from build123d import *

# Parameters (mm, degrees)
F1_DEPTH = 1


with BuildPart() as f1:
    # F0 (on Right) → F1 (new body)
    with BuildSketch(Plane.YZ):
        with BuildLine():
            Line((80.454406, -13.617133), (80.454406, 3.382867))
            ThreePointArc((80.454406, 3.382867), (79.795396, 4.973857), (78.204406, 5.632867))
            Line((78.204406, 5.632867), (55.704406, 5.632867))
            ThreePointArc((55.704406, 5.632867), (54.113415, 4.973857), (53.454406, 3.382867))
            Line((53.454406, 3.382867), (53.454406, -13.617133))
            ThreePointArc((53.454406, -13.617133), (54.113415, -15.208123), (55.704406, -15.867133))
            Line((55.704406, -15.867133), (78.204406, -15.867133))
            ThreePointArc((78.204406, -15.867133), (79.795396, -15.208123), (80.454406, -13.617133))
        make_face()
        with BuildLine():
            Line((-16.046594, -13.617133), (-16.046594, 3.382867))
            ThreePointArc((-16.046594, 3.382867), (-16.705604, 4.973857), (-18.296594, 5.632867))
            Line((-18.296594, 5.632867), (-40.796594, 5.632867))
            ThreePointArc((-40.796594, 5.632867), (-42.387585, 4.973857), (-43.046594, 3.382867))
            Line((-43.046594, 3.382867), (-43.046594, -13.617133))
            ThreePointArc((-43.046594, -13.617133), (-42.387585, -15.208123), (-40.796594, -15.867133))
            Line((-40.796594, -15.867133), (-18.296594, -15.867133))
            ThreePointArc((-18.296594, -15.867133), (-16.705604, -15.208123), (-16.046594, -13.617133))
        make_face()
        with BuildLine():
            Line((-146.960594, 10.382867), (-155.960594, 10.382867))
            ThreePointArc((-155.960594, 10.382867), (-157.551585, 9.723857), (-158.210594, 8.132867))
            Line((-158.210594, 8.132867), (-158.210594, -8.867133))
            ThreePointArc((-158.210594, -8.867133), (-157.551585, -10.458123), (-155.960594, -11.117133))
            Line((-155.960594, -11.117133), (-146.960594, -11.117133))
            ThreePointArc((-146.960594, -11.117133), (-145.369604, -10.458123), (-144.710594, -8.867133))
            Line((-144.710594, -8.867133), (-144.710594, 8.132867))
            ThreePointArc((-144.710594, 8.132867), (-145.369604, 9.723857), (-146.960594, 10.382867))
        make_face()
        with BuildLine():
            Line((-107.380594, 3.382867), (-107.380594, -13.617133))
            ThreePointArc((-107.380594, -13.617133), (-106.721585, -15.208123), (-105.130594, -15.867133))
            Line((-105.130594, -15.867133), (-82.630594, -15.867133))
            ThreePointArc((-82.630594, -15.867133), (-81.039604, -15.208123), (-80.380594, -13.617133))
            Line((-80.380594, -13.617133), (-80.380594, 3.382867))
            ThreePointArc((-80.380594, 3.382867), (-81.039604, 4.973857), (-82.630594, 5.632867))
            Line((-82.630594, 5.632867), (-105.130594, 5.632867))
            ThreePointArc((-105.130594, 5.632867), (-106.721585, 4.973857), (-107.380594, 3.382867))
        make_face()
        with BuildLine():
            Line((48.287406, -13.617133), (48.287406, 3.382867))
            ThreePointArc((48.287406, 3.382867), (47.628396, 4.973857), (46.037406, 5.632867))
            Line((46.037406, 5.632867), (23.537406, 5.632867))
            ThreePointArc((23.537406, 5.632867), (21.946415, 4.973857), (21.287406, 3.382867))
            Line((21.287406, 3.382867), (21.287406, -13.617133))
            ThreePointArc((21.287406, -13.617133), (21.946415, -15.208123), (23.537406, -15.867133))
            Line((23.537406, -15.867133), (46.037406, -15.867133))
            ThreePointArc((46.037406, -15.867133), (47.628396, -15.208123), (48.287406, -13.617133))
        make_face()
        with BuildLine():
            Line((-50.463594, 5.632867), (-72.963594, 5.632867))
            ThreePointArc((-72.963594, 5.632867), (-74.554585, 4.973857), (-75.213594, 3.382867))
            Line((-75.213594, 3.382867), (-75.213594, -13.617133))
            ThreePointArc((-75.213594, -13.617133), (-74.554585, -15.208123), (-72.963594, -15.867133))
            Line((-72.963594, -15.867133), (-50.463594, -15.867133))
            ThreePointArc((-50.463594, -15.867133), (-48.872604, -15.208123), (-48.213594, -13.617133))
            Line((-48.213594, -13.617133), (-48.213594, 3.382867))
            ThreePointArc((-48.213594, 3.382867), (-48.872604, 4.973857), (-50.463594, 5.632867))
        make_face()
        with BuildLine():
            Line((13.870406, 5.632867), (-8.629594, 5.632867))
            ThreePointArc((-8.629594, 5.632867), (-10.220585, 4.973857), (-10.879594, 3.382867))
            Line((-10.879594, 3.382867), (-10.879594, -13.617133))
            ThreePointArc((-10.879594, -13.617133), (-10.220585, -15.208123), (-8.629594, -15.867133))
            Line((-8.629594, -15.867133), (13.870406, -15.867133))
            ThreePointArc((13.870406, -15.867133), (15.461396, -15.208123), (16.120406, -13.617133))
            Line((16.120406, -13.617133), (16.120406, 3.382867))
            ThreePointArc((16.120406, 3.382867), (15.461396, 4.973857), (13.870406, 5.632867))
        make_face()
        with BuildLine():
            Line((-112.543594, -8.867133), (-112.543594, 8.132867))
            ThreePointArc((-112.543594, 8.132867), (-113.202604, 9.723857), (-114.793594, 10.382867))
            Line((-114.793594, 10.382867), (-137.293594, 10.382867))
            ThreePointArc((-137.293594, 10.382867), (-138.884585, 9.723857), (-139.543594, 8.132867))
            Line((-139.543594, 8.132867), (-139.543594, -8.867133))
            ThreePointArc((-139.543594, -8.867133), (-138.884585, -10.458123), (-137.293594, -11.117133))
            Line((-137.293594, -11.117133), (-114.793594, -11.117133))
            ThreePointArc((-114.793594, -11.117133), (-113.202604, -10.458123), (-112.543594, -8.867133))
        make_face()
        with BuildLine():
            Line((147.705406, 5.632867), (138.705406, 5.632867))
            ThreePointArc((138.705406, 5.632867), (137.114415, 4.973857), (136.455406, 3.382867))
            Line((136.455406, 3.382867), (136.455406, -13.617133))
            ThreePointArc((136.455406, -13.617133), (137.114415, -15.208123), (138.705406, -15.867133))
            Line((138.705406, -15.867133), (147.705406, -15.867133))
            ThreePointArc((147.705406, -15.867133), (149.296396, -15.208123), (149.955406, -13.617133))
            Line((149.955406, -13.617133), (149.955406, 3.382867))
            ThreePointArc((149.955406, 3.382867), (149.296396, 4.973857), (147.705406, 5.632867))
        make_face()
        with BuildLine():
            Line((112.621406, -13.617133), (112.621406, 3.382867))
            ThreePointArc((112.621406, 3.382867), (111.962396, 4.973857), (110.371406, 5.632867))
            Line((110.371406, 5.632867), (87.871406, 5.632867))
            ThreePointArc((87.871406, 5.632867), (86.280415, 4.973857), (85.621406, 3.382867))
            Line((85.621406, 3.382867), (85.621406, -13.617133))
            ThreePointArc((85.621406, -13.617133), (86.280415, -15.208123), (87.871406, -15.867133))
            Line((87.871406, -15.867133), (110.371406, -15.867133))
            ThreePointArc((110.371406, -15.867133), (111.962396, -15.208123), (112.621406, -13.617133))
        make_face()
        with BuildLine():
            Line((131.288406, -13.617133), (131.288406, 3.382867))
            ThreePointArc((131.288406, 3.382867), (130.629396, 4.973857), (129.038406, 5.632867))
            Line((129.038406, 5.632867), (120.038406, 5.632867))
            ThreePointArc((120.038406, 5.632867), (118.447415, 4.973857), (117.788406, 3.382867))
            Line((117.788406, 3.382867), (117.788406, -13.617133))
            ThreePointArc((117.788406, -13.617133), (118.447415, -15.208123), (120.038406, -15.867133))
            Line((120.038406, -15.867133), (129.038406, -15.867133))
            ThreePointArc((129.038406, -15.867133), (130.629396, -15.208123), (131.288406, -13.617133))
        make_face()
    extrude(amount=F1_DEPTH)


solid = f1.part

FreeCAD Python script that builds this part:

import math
import FreeCAD as App
import Part
import Sketcher

V = App.Vector
Q = App.Units.Quantity

doc = App.newDocument("Part")
body = doc.addObject("PartDesign::Body", "Body")
body.AllowCompound = True

sketch1 = doc.addObject("Sketcher::SketchObject", "Sketch")
body.addObject(sketch1)
sketch1.AttachmentSupport = (doc.YZ_Plane, [""])
sketch1.MapMode = "FlatFace"
sketch1.addGeometry([
    Part.LineSegment(V(80.5, -13.6, 0), V(80.5, 3.4, 0)),
    Part.ArcOfCircle(Part.Circle(V(78.2, 3.4, 0), V(0, 0, 1), 2.3), math.radians(0), math.radians(90)),
    Part.LineSegment(V(78.2, 5.6, 0), V(55.7, 5.6, 0)),
    Part.ArcOfCircle(Part.Circle(V(55.7, 3.4, 0), V(0, 0, 1), 2.2), math.radians(90), math.radians(180)),
    Part.LineSegment(V(53.5, 3.4, 0), V(53.5, -13.6, 0)),
    Part.ArcOfCircle(Part.Circle(V(55.7, -13.6, 0), V(0, 0, 1), 2.2), math.radians(180), math.radians(270)),
    Part.LineSegment(V(55.7, -15.9, 0), V(78.2, -15.9, 0)),
    Part.ArcOfCircle(Part.Circle(V(78.2, -13.6, 0), V(0, 0, 1), 2.3), math.radians(-90), math.radians(0)),
    Part.LineSegment(V(-16, -13.6, 0), V(-16, 3.4, 0)),
    Part.ArcOfCircle(Part.Circle(V(-18.3, 3.4, 0), V(0, 0, 1), 2.3), math.radians(0), math.radians(90)),
    Part.LineSegment(V(-18.3, 5.6, 0), V(-40.8, 5.6, 0)),
    Part.ArcOfCircle(Part.Circle(V(-40.8, 3.4, 0), V(0, 0, 1), 2.2), math.radians(90), math.radians(180)),
    Part.LineSegment(V(-43, 3.4, 0), V(-43, -13.6, 0)),
    Part.ArcOfCircle(Part.Circle(V(-40.8, -13.6, 0), V(0, 0, 1), 2.2), math.radians(180), math.radians(270)),
    Part.LineSegment(V(-40.8, -15.9, 0), V(-18.3, -15.9, 0)),
    Part.ArcOfCircle(Part.Circle(V(-18.3, -13.6, 0), V(0, 0, 1), 2.3), math.radians(-90), math.radians(0)),
    Part.LineSegment(V(-147, 10.4, 0), V(-156, 10.4, 0)),
    Part.ArcOfCircle(Part.Circle(V(-156, 8.1, 0), V(0, 0, 1), 2.2), math.radians(90), math.radians(180)),
    Part.LineSegment(V(-158.2, 8.1, 0), V(-158.2, -8.9, 0)),
    Part.ArcOfCircle(Part.Circle(V(-156, -8.9, 0), V(0, 0, 1), 2.2), math.radians(180), math.radians(270)),
    Part.LineSegment(V(-156, -11.1, 0), V(-147, -11.1, 0)),
    Part.ArcOfCircle(Part.Circle(V(-147, -8.9, 0), V(0, 0, 1), 2.3), math.radians(-90), math.radians(0)),
    Part.LineSegment(V(-144.7, -8.9, 0), V(-144.7, 8.1, 0)),
    Part.ArcOfCircle(Part.Circle(V(-147, 8.1, 0), V(0, 0, 1), 2.3), math.radians(0), math.radians(90)),
    Part.LineSegment(V(-107.4, 3.4, 0), V(-107.4, -13.6, 0)),
    Part.ArcOfCircle(Part.Circle(V(-105.1, -13.6, 0), V(0, 0, 1), 2.2), math.radians(180), math.radians(270)),
    Part.LineSegment(V(-105.1, -15.9, 0), V(-82.6, -15.9, 0)),
    Part.ArcOfCircle(Part.Circle(V(-82.6, -13.6, 0), V(0, 0, 1), 2.3), math.radians(-90), math.radians(0)),
    Part.LineSegment(V(-80.4, -13.6, 0), V(-80.4, 3.4, 0)),
    Part.ArcOfCircle(Part.Circle(V(-82.6, 3.4, 0), V(0, 0, 1), 2.3), math.radians(0), math.radians(90)),
    Part.LineSegment(V(-82.6, 5.6, 0), V(-105.1, 5.6, 0)),
    Part.ArcOfCircle(Part.Circle(V(-105.1, 3.4, 0), V(0, 0, 1), 2.2), math.radians(90), math.radians(180)),
    Part.LineSegment(V(48.3, -13.6, 0), V(48.3, 3.4, 0)),
    Part.ArcOfCircle(Part.Circle(V(46, 3.4, 0), V(0, 0, 1), 2.3), math.radians(0), math.radians(90)),
    Part.LineSegment(V(46, 5.6, 0), V(23.5, 5.6, 0)),
    Part.ArcOfCircle(Part.Circle(V(23.5, 3.4, 0), V(0, 0, 1), 2.2), math.radians(90), math.radians(180)),
    Part.LineSegment(V(21.3, 3.4, 0), V(21.3, -13.6, 0)),
    Part.ArcOfCircle(Part.Circle(V(23.5, -13.6, 0), V(0, 0, 1), 2.2), math.radians(180), math.radians(270)),
    Part.LineSegment(V(23.5, -15.9, 0), V(46, -15.9, 0)),
    Part.ArcOfCircle(Part.Circle(V(46, -13.6, 0), V(0, 0, 1), 2.3), math.radians(-90), math.radians(0)),
    Part.LineSegment(V(-50.5, 5.6, 0), V(-73, 5.6, 0)),
    Part.ArcOfCircle(Part.Circle(V(-73, 3.4, 0), V(0, 0, 1), 2.2), math.radians(90), math.radians(180)),
    Part.LineSegment(V(-75.2, 3.4, 0), V(-75.2, -13.6, 0)),
    Part.ArcOfCircle(Part.Circle(V(-73, -13.6, 0), V(0, 0, 1), 2.2), math.radians(180), math.radians(270)),
    Part.LineSegment(V(-73, -15.9, 0), V(-50.5, -15.9, 0)),
    Part.ArcOfCircle(Part.Circle(V(-50.5, -13.6, 0), V(0, 0, 1), 2.3), math.radians(-90), math.radians(0)),
    Part.LineSegment(V(-48.2, -13.6, 0), V(-48.2, 3.4, 0)),
    Part.ArcOfCircle(Part.Circle(V(-50.5, 3.4, 0), V(0, 0, 1), 2.3), math.radians(0), math.radians(90)),
    Part.LineSegment(V(13.9, 5.6, 0), V(-8.6, 5.6, 0)),
    Part.ArcOfCircle(Part.Circle(V(-8.6, 3.4, 0), V(0, 0, 1), 2.2), math.radians(90), math.radians(180)),
    Part.LineSegment(V(-10.9, 3.4, 0), V(-10.9, -13.6, 0)),
    Part.ArcOfCircle(Part.Circle(V(-8.6, -13.6, 0), V(0, 0, 1), 2.2), math.radians(180), math.radians(270)),
    Part.LineSegment(V(-8.6, -15.9, 0), V(13.9, -15.9, 0)),
    Part.ArcOfCircle(Part.Circle(V(13.9, -13.6, 0), V(0, 0, 1), 2.3), math.radians(-90), math.radians(0)),
    Part.LineSegment(V(16.1, -13.6, 0), V(16.1, 3.4, 0)),
    Part.ArcOfCircle(Part.Circle(V(13.9, 3.4, 0), V(0, 0, 1), 2.3), math.radians(0), math.radians(90)),
    Part.LineSegment(V(-112.5, -8.9, 0), V(-112.5, 8.1, 0)),
    Part.ArcOfCircle(Part.Circle(V(-114.8, 8.1, 0), V(0, 0, 1), 2.3), math.radians(0), math.radians(90)),
    Part.LineSegment(V(-114.8, 10.4, 0), V(-137.3, 10.4, 0)),
    Part.ArcOfCircle(Part.Circle(V(-137.3, 8.1, 0), V(0, 0, 1), 2.2), math.radians(90), math.radians(180)),
    Part.LineSegment(V(-139.5, 8.1, 0), V(-139.5, -8.9, 0)),
    Part.ArcOfCircle(Part.Circle(V(-137.3, -8.9, 0), V(0, 0, 1), 2.2), math.radians(180), math.radians(270)),
    Part.LineSegment(V(-137.3, -11.1, 0), V(-114.8, -11.1, 0)),
    Part.ArcOfCircle(Part.Circle(V(-114.8, -8.9, 0), V(0, 0, 1), 2.3), math.radians(-90), math.radians(0)),
    Part.LineSegment(V(147.7, 5.6, 0), V(138.7, 5.6, 0)),
    Part.ArcOfCircle(Part.Circle(V(138.7, 3.4, 0), V(0, 0, 1), 2.2), math.radians(90), math.radians(180)),
    Part.LineSegment(V(136.5, 3.4, 0), V(136.5, -13.6, 0)),
    Part.ArcOfCircle(Part.Circle(V(138.7, -13.6, 0), V(0, 0, 1), 2.2), math.radians(180), math.radians(270)),
    Part.LineSegment(V(138.7, -15.9, 0), V(147.7, -15.9, 0)),
    Part.ArcOfCircle(Part.Circle(V(147.7, -13.6, 0), V(0, 0, 1), 2.3), math.radians(-90), math.radians(0)),
    Part.LineSegment(V(150, -13.6, 0), V(150, 3.4, 0)),
    Part.ArcOfCircle(Part.Circle(V(147.7, 3.4, 0), V(0, 0, 1), 2.3), math.radians(0), math.radians(90)),
    Part.LineSegment(V(112.6, -13.6, 0), V(112.6, 3.4, 0)),
    Part.ArcOfCircle(Part.Circle(V(110.4, 3.4, 0), V(0, 0, 1), 2.3), math.radians(0), math.radians(90)),
    Part.LineSegment(V(110.4, 5.6, 0), V(87.9, 5.6, 0)),
    Part.ArcOfCircle(Part.Circle(V(87.9, 3.4, 0), V(0, 0, 1), 2.2), math.radians(90), math.radians(180)),
    Part.LineSegment(V(85.6, 3.4, 0), V(85.6, -13.6, 0)),
    Part.ArcOfCircle(Part.Circle(V(87.9, -13.6, 0), V(0, 0, 1), 2.2), math.radians(180), math.radians(270)),
    Part.LineSegment(V(87.9, -15.9, 0), V(110.4, -15.9, 0)),
    Part.ArcOfCircle(Part.Circle(V(110.4, -13.6, 0), V(0, 0, 1), 2.3), math.radians(-90), math.radians(0)),
    Part.LineSegment(V(131.3, -13.6, 0), V(131.3, 3.4, 0)),
    Part.ArcOfCircle(Part.Circle(V(129, 3.4, 0), V(0, 0, 1), 2.3), math.radians(0), math.radians(90)),
    Part.LineSegment(V(129, 5.6, 0), V(120, 5.6, 0)),
    Part.ArcOfCircle(Part.Circle(V(120, 3.4, 0), V(0, 0, 1), 2.2), math.radians(90), math.radians(180)),
    Part.LineSegment(V(117.8, 3.4, 0), V(117.8, -13.6, 0)),
    Part.ArcOfCircle(Part.Circle(V(120, -13.6, 0), V(0, 0, 1), 2.2), math.radians(180), math.radians(270)),
    Part.LineSegment(V(120, -15.9, 0), V(129, -15.9, 0)),
    Part.ArcOfCircle(Part.Circle(V(129, -13.6, 0), V(0, 0, 1), 2.3), math.radians(-90), math.radians(0)),
], False)
sketch1.addConstraint([
    Sketcher.Constraint("Tangent", 0, 2, 1, 1),
    Sketcher.Constraint("Tangent", 1, 2, 2, 1),
    Sketcher.Constraint("Tangent", 2, 2, 3, 1),
    Sketcher.Constraint("Tangent", 3, 2, 4, 1),
    Sketcher.Constraint("Tangent", 4, 2, 5, 1),
    Sketcher.Constraint("Tangent", 5, 2, 6, 1),
    Sketcher.Constraint("Tangent", 6, 2, 7, 1),
    Sketcher.Constraint("Tangent", 7, 2, 0, 1),
    Sketcher.Constraint("Tangent", 8, 2, 9, 1),
    Sketcher.Constraint("Tangent", 9, 2, 10, 1),
    Sketcher.Constraint("Tangent", 10, 2, 11, 1),
    Sketcher.Constraint("Tangent", 11, 2, 12, 1),
    Sketcher.Constraint("Tangent", 12, 2, 13, 1),
    Sketcher.Constraint("Tangent", 13, 2, 14, 1),
    Sketcher.Constraint("Tangent", 14, 2, 15, 1),
    Sketcher.Constraint("Tangent", 15, 2, 8, 1),
    Sketcher.Constraint("Tangent", 16, 2, 17, 1),
    Sketcher.Constraint("Tangent", 17, 2, 18, 1),
    Sketcher.Constraint("Tangent", 18, 2, 19, 1),
    Sketcher.Constraint("Tangent", 19, 2, 20, 1),
    Sketcher.Constraint("Tangent", 20, 2, 21, 1),
    Sketcher.Constraint("Tangent", 21, 2, 22, 1),
    Sketcher.Constraint("Tangent", 22, 2, 23, 1),
    Sketcher.Constraint("Tangent", 23, 2, 16, 1),
    Sketcher.Constraint("Tangent", 24, 2, 25, 1),
    Sketcher.Constraint("Tangent", 25, 2, 26, 1),
    Sketcher.Constraint("Tangent", 26, 2, 27, 1),
    Sketcher.Constraint("Tangent", 27, 2, 28, 1),
    Sketcher.Constraint("Tangent", 28, 2, 29, 1),
    Sketcher.Constraint("Tangent", 29, 2, 30, 1),
    Sketcher.Constraint("Tangent", 30, 2, 31, 1),
    Sketcher.Constraint("Tangent", 31, 2, 24, 1),
    Sketcher.Constraint("Tangent", 32, 2, 33, 1),
    Sketcher.Constraint("Tangent", 33, 2, 34, 1),
    Sketcher.Constraint("Tangent", 34, 2, 35, 1),
    Sketcher.Constraint("Tangent", 35, 2, 36, 1),
    Sketcher.Constraint("Tangent", 36, 2, 37, 1),
    Sketcher.Constraint("Tangent", 37, 2, 38, 1),
    Sketcher.Constraint("Tangent", 38, 2, 39, 1),
    Sketcher.Constraint("Tangent", 39, 2, 32, 1),
    Sketcher.Constraint("Tangent", 40, 2, 41, 1),
    Sketcher.Constraint("Tangent", 41, 2, 42, 1),
    Sketcher.Constraint("Tangent", 42, 2, 43, 1),
    Sketcher.Constraint("Tangent", 43, 2, 44, 1),
    Sketcher.Constraint("Tangent", 44, 2, 45, 1),
    Sketcher.Constraint("Tangent", 45, 2, 46, 1),
    Sketcher.Constraint("Tangent", 46, 2, 47, 1),
    Sketcher.Constraint("Tangent", 47, 2, 40, 1),
    Sketcher.Constraint("Tangent", 48, 2, 49, 1),
    Sketcher.Constraint("Tangent", 49, 2, 50, 1),
    Sketcher.Constraint("Tangent", 50, 2, 51, 1),
    Sketcher.Constraint("Tangent", 51, 2, 52, 1),
    Sketcher.Constraint("Tangent", 52, 2, 53, 1),
    Sketcher.Constraint("Tangent", 53, 2, 54, 1),
    Sketcher.Constraint("Tangent", 54, 2, 55, 1),
    Sketcher.Constraint("Tangent", 55, 2, 48, 1),
    Sketcher.Constraint("Tangent", 56, 2, 57, 1),
    Sketcher.Constraint("Tangent", 57, 2, 58, 1),
    Sketcher.Constraint("Tangent", 58, 2, 59, 1),
    Sketcher.Constraint("Tangent", 59, 2, 60, 1),
    Sketcher.Constraint("Tangent", 60, 2, 61, 1),
    Sketcher.Constraint("Tangent", 61, 2, 62, 1),
    Sketcher.Constraint("Tangent", 62, 2, 63, 1),
    Sketcher.Constraint("Tangent", 63, 2, 56, 1),
    Sketcher.Constraint("Tangent", 64, 2, 65, 1),
    Sketcher.Constraint("Tangent", 65, 2, 66, 1),
    Sketcher.Constraint("Tangent", 66, 2, 67, 1),
    Sketcher.Constraint("Tangent", 67, 2, 68, 1),
    Sketcher.Constraint("Tangent", 68, 2, 69, 1),
    Sketcher.Constraint("Tangent", 69, 2, 70, 1),
    Sketcher.Constraint("Tangent", 70, 2, 71, 1),
    Sketcher.Constraint("Tangent", 71, 2, 64, 1),
    Sketcher.Constraint("Tangent", 72, 2, 73, 1),
    Sketcher.Constraint("Tangent", 73, 2, 74, 1),
    Sketcher.Constraint("Tangent", 74, 2, 75, 1),
    Sketcher.Constraint("Tangent", 75, 2, 76, 1),
    Sketcher.Constraint("Tangent", 76, 2, 77, 1),
    Sketcher.Constraint("Tangent", 77, 2, 78, 1),
    Sketcher.Constraint("Tangent", 78, 2, 79, 1),
    Sketcher.Constraint("Tangent", 79, 2, 72, 1),
    Sketcher.Constraint("Tangent", 80, 2, 81, 1),
    Sketcher.Constraint("Tangent", 81, 2, 82, 1),
    Sketcher.Constraint("Tangent", 82, 2, 83, 1),
    Sketcher.Constraint("Tangent", 83, 2, 84, 1),
    Sketcher.Constraint("Tangent", 84, 2, 85, 1),
    Sketcher.Constraint("Tangent", 85, 2, 86, 1),
    Sketcher.Constraint("Tangent", 86, 2, 87, 1),
    Sketcher.Constraint("Tangent", 87, 2, 80, 1),
    Sketcher.Constraint("Vertical", 0),
    Sketcher.Constraint("Horizontal", 2),
    Sketcher.Constraint("Vertical", 4),
    Sketcher.Constraint("Horizontal", 6),
    Sketcher.Constraint("Vertical", 8),
    Sketcher.Constraint("Horizontal", 10),
    Sketcher.Constraint("Vertical", 12),
    Sketcher.Constraint("Horizontal", 14),
    Sketcher.Constraint("Horizontal", 16),
    Sketcher.Constraint("Vertical", 18),
    Sketcher.Constraint("Horizontal", 20),
    Sketcher.Constraint("Vertical", 22),
    Sketcher.Constraint("Vertical", 24),
    Sketcher.Constraint("Horizontal", 26),
    Sketcher.Constraint("Vertical", 28),
    Sketcher.Constraint("Horizontal", 30),
    Sketcher.Constraint("Vertical", 32),
    Sketcher.Constraint("Horizontal", 34),
    Sketcher.Constraint("Vertical", 36),
    Sketcher.Constraint("Horizontal", 38),
    Sketcher.Constraint("Horizontal", 40),
    Sketcher.Constraint("Vertical", 42),
    Sketcher.Constraint("Horizontal", 44),
    Sketcher.Constraint("Vertical", 46),
    Sketcher.Constraint("Horizontal", 48),
    Sketcher.Constraint("Vertical", 50),
    Sketcher.Constraint("Horizontal", 52),
    Sketcher.Constraint("Vertical", 54),
    Sketcher.Constraint("Vertical", 56),
    Sketcher.Constraint("Horizontal", 58),
    Sketcher.Constraint("Vertical", 60),
    Sketcher.Constraint("Horizontal", 62),
    Sketcher.Constraint("Horizontal", 64),
    Sketcher.Constraint("Vertical", 66),
    Sketcher.Constraint("Horizontal", 68),
    Sketcher.Constraint("Vertical", 70),
    Sketcher.Constraint("Vertical", 72),
    Sketcher.Constraint("Horizontal", 74),
    Sketcher.Constraint("Vertical", 76),
    Sketcher.Constraint("Horizontal", 78),
    Sketcher.Constraint("Vertical", 80),
    Sketcher.Constraint("Horizontal", 82),
    Sketcher.Constraint("Vertical", 84),
    Sketcher.Constraint("Horizontal", 86),
    Sketcher.Constraint("Equal", 1, 3),
    Sketcher.Constraint("Equal", 3, 5),
    Sketcher.Constraint("Equal", 5, 7),
    Sketcher.Constraint("Equal", 7, 9),
    Sketcher.Constraint("Equal", 9, 11),
    Sketcher.Constraint("Equal", 11, 13),
    Sketcher.Constraint("Equal", 13, 15),
    Sketcher.Constraint("Equal", 15, 17),
    Sketcher.Constraint("Equal", 17, 19),
    Sketcher.Constraint("Equal", 19, 21),
    Sketcher.Constraint("Equal", 21, 23),
    Sketcher.Constraint("Equal", 23, 25),
    Sketcher.Constraint("Equal", 25, 27),
    Sketcher.Constraint("Equal", 27, 29),
    Sketcher.Constraint("Equal", 29, 31),
    Sketcher.Constraint("Equal", 31, 33),
    Sketcher.Constraint("Equal", 33, 35),
    Sketcher.Constraint("Equal", 35, 37),
    Sketcher.Constraint("Equal", 37, 39),
    Sketcher.Constraint("Equal", 39, 41),
    Sketcher.Constraint("Equal", 41, 43),
    Sketcher.Constraint("Equal", 43, 45),
    Sketcher.Constraint("Equal", 45, 47),
    Sketcher.Constraint("Equal", 47, 49),
    Sketcher.Constraint("Equal", 49, 51),
    Sketcher.Constraint("Equal", 51, 53),
    Sketcher.Constraint("Equal", 53, 55),
    Sketcher.Constraint("Equal", 55, 57),
    Sketcher.Constraint("Equal", 57, 59),
    Sketcher.Constraint("Equal", 59, 61),
    Sketcher.Constraint("Equal", 61, 63),
    Sketcher.Constraint("Equal", 63, 65),
    Sketcher.Constraint("Equal", 65, 67),
    Sketcher.Constraint("Equal", 67, 69),
    Sketcher.Constraint("Equal", 69, 71),
    Sketcher.Constraint("Equal", 71, 73),
    Sketcher.Constraint("Equal", 73, 75),
    Sketcher.Constraint("Equal", 75, 77),
    Sketcher.Constraint("Equal", 77, 79),
    Sketcher.Constraint("Equal", 79, 81),
    Sketcher.Constraint("Equal", 81, 83),
    Sketcher.Constraint("Equal", 83, 85),
    Sketcher.Constraint("Equal", 85, 87),
    Sketcher.Constraint("Horizontal", 3, 3, 9, 3),
    Sketcher.Constraint("Horizontal", 7, 3, 13, 3),
    Sketcher.Constraint("Horizontal", 15, 3, 25, 3),
    Sketcher.Constraint("Horizontal", 11, 3, 29, 3),
    Sketcher.Constraint("Horizontal", 31, 3, 33, 3),
    Sketcher.Constraint("Horizontal", 27, 3, 37, 3),
    Sketcher.Constraint("Horizontal", 35, 3, 41, 3),
    Sketcher.Constraint("Horizontal", 39, 3, 43, 3),
    Sketcher.Constraint("Horizontal", 47, 3, 49, 3),
    Sketcher.Constraint("Horizontal", 45, 3, 51, 3),
    Sketcher.Constraint("Horizontal", 23, 3, 57, 3),
    Sketcher.Constraint("Horizontal", 21, 3, 61, 3),
    Sketcher.Constraint("Horizontal", 55, 3, 65, 3),
    Sketcher.Constraint("Horizontal", 53, 3, 67, 3),
    Sketcher.Constraint("Horizontal", 71, 3, 73, 3),
    Sketcher.Constraint("Horizontal", 69, 3, 77, 3),
    Sketcher.Constraint("Horizontal", 75, 3, 81, 3),
    Sketcher.Constraint("Horizontal", 79, 3, 85, 3),
    Sketcher.Constraint("Equal", 6, 10),
    Sketcher.Constraint("Equal", 14, 26),
    Sketcher.Constraint("Equal", 30, 34),
    Sketcher.Constraint("Equal", 38, 40),
    Sketcher.Constraint("Equal", 44, 48),
    Sketcher.Constraint("Equal", 52, 58),
    Sketcher.Constraint("Equal", 20, 64),
    Sketcher.Constraint("Equal", 62, 74),
    Sketcher.Constraint("Equal", 68, 82),
    Sketcher.Constraint("Equal", 12, 18),
    Sketcher.Constraint("DistanceX", 16, 2, 16, 1, Q("9 mm")),
    Sketcher.Constraint("DistanceY", 0, 1, 0, 2, Q("17 mm")),
    Sketcher.Constraint("Radius", 1, Q("2.250001 mm")),
    Sketcher.Constraint("DistanceX", 2, 2, 2, 1, Q("22.5 mm")),
    Sketcher.Constraint("DistanceX", -1, 1, 1, 3, Q("78.204405 mm")),
    Sketcher.Constraint("DistanceY", -1, 1, 1, 3, Q("3.382866 mm")),
    Sketcher.Constraint("DistanceX", 9, 3, -1, 1, Q("18.296595 mm")),
    Sketcher.Constraint("DistanceX", 17, 3, -1, 1, Q("155.960595 mm")),
    Sketcher.Constraint("DistanceY", -1, 1, 17, 3, Q("8.132868 mm")),
    Sketcher.Constraint("DistanceX", 25, 3, -1, 1, Q("105.130595 mm")),
    Sketcher.Constraint("DistanceX", -1, 1, 33, 3, Q("46.037405 mm")),
    Sketcher.Constraint("DistanceX", 41, 3, -1, 1, Q("72.963595 mm")),
    Sketcher.Constraint("DistanceX", 49, 3, -1, 1, Q("8.629595 mm")),
    Sketcher.Constraint("DistanceX", 57, 3, -1, 1, Q("114.793595 mm")),
    Sketcher.Constraint("DistanceX", -1, 1, 65, 3, Q("138.705405 mm")),
    Sketcher.Constraint("DistanceX", -1, 1, 73, 3, Q("110.371405 mm")),
    Sketcher.Constraint("DistanceX", -1, 1, 81, 3, Q("129.038405 mm")),
])
pad1 = doc.addObject("PartDesign::Pad", "Pad")
body.addObject(pad1)
pad1.Profile = sketch1
pad1.Length = 1

doc.recompute()
